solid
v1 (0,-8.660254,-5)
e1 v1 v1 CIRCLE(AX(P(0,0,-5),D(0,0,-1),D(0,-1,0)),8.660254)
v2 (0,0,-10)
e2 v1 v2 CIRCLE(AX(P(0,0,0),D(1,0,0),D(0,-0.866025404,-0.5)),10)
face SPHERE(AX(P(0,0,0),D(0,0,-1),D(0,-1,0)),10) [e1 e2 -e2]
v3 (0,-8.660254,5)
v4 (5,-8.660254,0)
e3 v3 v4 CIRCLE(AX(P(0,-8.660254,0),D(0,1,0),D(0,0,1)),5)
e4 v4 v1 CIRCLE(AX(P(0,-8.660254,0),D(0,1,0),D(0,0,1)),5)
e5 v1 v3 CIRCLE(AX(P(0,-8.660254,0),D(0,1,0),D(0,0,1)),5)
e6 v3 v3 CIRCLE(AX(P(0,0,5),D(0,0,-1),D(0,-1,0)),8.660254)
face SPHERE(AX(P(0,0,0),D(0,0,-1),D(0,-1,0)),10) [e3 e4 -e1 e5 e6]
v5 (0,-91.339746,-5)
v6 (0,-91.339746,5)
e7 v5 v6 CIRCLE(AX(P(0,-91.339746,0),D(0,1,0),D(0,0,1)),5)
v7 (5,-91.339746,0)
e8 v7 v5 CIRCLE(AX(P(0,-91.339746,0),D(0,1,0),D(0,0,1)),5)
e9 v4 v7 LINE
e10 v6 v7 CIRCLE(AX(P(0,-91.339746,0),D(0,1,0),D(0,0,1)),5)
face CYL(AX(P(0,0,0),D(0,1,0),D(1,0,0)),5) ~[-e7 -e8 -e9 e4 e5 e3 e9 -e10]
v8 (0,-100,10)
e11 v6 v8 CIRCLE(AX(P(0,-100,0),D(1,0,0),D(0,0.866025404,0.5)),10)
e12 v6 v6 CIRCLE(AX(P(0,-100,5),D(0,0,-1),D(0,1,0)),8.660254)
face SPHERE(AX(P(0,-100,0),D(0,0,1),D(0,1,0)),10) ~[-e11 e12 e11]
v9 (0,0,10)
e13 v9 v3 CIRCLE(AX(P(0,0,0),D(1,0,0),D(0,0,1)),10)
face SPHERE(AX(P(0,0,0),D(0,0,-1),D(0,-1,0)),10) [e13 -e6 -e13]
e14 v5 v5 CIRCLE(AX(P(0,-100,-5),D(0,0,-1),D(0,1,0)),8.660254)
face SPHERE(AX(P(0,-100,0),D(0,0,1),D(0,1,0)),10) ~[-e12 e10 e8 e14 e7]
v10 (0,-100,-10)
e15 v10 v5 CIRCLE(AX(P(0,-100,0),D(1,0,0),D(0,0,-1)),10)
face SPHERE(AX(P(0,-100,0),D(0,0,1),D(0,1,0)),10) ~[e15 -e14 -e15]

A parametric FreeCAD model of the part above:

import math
import FreeCAD as App
import Part
import Sketcher

doc = App.newDocument("Part")
params = doc.addObject("Spreadsheet::Sheet", "Params")
for row, (alias, value) in enumerate([
    ("sketch1_diameter", "10 mm"),
    ("pad1_length", "100 mm"),
    ("sketch2_radius", "10 mm"),
    ("revolution_angle", "360 deg"),
    ("sketch3_radius", "10 mm"),
    ("revolution2_angle", "360 deg"),
], start=1):
    params.set(f"A{row}", alias)
    params.set(f"B{row}", "=" + value)
    params.setAlias(f"B{row}", alias)

body = doc.addObject("PartDesign::Body", "Body")

sketch1 = body.newObject("Sketcher::SketchObject", "Sketch")
sketch1.AttachmentSupport = (doc.getObject("XZ_Plane"), [""])
sketch1.MapMode = "FlatFace"
sketch1.addGeometry(Part.Circle(App.Vector(0, 0, 0), App.Vector(0, 0, 1), 5), False)
sketch1.addConstraint([
    Sketcher.Constraint("Coincident", 0, 3, -1, 1),
    Sketcher.Constraint("Diameter", 0, 10.0),
])
sketch1.setExpression("Constraints[1]", "Params.sketch1_diameter")
pad1 = body.newObject("PartDesign::Pad", "Pad")
pad1.Profile = sketch1
pad1.setExpression("Length", "Params.pad1_length")

sketch2 = body.newObject("Sketcher::SketchObject", "Sketch001")
sketch2.AttachmentSupport = (doc.getObject("YZ_Plane"), [""])
sketch2.MapMode = "FlatFace"
sketch2.addGeometry([
    Part.LineSegment(App.Vector(0, -10, 0), App.Vector(0, 10, 0)),
    Part.ArcOfCircle(Part.Circle(App.Vector(0, 0, 0), App.Vector(0, 0, 1), 10), math.radians(90), math.radians(150)),
    Part.ArcOfCircle(Part.Circle(App.Vector(0, 0, 0), App.Vector(0, 0, 1), 10), math.radians(150), math.radians(210)),
    Part.ArcOfCircle(Part.Circle(App.Vector(0, 0, 0), App.Vector(0, 0, 1), 10), math.radians(-150), math.radians(-90)),
], False)
sketch2.addConstraint([
    Sketcher.Constraint("Coincident", 0, 2, 1, 1),
    Sketcher.Constraint("Tangent", 1, 2, 2, 1),
    Sketcher.Constraint("Tangent", 2, 2, 3, 1),
    Sketcher.Constraint("Coincident", 3, 2, 0, 1),
    Sketcher.Constraint("Vertical", 0),
    Sketcher.Constraint("Coincident", 1, 3, -1, 1),
    Sketcher.Constraint("Coincident", 3, 3, -1, 1),
    Sketcher.Constraint("PointOnObject", 0, 2, -2),
    Sketcher.Constraint("Vertical", 1, 2, 2, 2),
    Sketcher.Constraint("Radius", 1, 10.0),
    Sketcher.Constraint("DistanceY", -1, 1, 1, 2, 5.0),
])
sketch2.setExpression("Constraints[9]", "Params.sketch2_radius")
revolution = body.newObject("PartDesign::Revolution", "Revolution")
revolution.Profile = sketch2
revolution.ReferenceAxis = (sketch2, ["V_Axis"])
revolution.setExpression("Angle", "Params.revolution_angle")

sketch3 = body.newObject("Sketcher::SketchObject", "Sketch002")
sketch3.AttachmentSupport = (doc.getObject("YZ_Plane"), [""])
sketch3.MapMode = "FlatFace"
sketch3.addGeometry([
    Part.ArcOfCircle(Part.Circle(App.Vector(-100, 0, 0), App.Vector(0, 0, 1), 10), math.radians(-30), math.radians(30)),
    Part.ArcOfCircle(Part.Circle(App.Vector(-100, 0, 0), App.Vector(0, 0, 1), 10), math.radians(30), math.radians(90)),
    Part.LineSegment(App.Vector(-100, 10, 0), App.Vector(-100, -10, 0)),
    Part.ArcOfCircle(Part.Circle(App.Vector(-100, 0, 0), App.Vector(0, 0, 1), 10), math.radians(-90), math.radians(-30)),
], False)
sketch3.addGeometry(Part.LineSegment(App.Vector(-100, 10, 0), App.Vector(-100, -10, 0)), True)
sketch3.addConstraint([
    Sketcher.Constraint("Tangent", 0, 2, 1, 1),
    Sketcher.Constraint("Coincident", 1, 2, 2, 1),
    Sketcher.Constraint("Coincident", 2, 2, 3, 1),
    Sketcher.Constraint("Tangent", 3, 2, 0, 1),
    Sketcher.Constraint("Vertical", 2),
    Sketcher.Constraint("Vertical", 4),
    Sketcher.Constraint("Coincident", 4, 1, 1, 2),
    Sketcher.Constraint("Equal", 0, 1),
    Sketcher.Constraint("Equal", 1, 3),
    Sketcher.Constraint("Symmetric", 0, 2, 3, 2, -1),
    Sketcher.Constraint("Vertical", 3, 3, 1, 2),
    Sketcher.Constraint("Equal", 2, 4),
    Sketcher.Constraint("Radius", 0, 10.0),
    Sketcher.Constraint("DistanceX", 0, 3, -1, 1, 100.0),
    Sketcher.Constraint("DistanceY", -1, 1, 0, 2, 5.0),
])
sketch3.setExpression("Constraints[12]", "Params.sketch3_radius")
revolution2 = body.newObject("PartDesign::Revolution", "Revolution001")
revolution2.Profile = sketch3
revolution2.ReferenceAxis = (sketch3, ["Axis0"])
revolution2.setExpression("Angle", "Params.revolution2_angle")

doc.recompute()
